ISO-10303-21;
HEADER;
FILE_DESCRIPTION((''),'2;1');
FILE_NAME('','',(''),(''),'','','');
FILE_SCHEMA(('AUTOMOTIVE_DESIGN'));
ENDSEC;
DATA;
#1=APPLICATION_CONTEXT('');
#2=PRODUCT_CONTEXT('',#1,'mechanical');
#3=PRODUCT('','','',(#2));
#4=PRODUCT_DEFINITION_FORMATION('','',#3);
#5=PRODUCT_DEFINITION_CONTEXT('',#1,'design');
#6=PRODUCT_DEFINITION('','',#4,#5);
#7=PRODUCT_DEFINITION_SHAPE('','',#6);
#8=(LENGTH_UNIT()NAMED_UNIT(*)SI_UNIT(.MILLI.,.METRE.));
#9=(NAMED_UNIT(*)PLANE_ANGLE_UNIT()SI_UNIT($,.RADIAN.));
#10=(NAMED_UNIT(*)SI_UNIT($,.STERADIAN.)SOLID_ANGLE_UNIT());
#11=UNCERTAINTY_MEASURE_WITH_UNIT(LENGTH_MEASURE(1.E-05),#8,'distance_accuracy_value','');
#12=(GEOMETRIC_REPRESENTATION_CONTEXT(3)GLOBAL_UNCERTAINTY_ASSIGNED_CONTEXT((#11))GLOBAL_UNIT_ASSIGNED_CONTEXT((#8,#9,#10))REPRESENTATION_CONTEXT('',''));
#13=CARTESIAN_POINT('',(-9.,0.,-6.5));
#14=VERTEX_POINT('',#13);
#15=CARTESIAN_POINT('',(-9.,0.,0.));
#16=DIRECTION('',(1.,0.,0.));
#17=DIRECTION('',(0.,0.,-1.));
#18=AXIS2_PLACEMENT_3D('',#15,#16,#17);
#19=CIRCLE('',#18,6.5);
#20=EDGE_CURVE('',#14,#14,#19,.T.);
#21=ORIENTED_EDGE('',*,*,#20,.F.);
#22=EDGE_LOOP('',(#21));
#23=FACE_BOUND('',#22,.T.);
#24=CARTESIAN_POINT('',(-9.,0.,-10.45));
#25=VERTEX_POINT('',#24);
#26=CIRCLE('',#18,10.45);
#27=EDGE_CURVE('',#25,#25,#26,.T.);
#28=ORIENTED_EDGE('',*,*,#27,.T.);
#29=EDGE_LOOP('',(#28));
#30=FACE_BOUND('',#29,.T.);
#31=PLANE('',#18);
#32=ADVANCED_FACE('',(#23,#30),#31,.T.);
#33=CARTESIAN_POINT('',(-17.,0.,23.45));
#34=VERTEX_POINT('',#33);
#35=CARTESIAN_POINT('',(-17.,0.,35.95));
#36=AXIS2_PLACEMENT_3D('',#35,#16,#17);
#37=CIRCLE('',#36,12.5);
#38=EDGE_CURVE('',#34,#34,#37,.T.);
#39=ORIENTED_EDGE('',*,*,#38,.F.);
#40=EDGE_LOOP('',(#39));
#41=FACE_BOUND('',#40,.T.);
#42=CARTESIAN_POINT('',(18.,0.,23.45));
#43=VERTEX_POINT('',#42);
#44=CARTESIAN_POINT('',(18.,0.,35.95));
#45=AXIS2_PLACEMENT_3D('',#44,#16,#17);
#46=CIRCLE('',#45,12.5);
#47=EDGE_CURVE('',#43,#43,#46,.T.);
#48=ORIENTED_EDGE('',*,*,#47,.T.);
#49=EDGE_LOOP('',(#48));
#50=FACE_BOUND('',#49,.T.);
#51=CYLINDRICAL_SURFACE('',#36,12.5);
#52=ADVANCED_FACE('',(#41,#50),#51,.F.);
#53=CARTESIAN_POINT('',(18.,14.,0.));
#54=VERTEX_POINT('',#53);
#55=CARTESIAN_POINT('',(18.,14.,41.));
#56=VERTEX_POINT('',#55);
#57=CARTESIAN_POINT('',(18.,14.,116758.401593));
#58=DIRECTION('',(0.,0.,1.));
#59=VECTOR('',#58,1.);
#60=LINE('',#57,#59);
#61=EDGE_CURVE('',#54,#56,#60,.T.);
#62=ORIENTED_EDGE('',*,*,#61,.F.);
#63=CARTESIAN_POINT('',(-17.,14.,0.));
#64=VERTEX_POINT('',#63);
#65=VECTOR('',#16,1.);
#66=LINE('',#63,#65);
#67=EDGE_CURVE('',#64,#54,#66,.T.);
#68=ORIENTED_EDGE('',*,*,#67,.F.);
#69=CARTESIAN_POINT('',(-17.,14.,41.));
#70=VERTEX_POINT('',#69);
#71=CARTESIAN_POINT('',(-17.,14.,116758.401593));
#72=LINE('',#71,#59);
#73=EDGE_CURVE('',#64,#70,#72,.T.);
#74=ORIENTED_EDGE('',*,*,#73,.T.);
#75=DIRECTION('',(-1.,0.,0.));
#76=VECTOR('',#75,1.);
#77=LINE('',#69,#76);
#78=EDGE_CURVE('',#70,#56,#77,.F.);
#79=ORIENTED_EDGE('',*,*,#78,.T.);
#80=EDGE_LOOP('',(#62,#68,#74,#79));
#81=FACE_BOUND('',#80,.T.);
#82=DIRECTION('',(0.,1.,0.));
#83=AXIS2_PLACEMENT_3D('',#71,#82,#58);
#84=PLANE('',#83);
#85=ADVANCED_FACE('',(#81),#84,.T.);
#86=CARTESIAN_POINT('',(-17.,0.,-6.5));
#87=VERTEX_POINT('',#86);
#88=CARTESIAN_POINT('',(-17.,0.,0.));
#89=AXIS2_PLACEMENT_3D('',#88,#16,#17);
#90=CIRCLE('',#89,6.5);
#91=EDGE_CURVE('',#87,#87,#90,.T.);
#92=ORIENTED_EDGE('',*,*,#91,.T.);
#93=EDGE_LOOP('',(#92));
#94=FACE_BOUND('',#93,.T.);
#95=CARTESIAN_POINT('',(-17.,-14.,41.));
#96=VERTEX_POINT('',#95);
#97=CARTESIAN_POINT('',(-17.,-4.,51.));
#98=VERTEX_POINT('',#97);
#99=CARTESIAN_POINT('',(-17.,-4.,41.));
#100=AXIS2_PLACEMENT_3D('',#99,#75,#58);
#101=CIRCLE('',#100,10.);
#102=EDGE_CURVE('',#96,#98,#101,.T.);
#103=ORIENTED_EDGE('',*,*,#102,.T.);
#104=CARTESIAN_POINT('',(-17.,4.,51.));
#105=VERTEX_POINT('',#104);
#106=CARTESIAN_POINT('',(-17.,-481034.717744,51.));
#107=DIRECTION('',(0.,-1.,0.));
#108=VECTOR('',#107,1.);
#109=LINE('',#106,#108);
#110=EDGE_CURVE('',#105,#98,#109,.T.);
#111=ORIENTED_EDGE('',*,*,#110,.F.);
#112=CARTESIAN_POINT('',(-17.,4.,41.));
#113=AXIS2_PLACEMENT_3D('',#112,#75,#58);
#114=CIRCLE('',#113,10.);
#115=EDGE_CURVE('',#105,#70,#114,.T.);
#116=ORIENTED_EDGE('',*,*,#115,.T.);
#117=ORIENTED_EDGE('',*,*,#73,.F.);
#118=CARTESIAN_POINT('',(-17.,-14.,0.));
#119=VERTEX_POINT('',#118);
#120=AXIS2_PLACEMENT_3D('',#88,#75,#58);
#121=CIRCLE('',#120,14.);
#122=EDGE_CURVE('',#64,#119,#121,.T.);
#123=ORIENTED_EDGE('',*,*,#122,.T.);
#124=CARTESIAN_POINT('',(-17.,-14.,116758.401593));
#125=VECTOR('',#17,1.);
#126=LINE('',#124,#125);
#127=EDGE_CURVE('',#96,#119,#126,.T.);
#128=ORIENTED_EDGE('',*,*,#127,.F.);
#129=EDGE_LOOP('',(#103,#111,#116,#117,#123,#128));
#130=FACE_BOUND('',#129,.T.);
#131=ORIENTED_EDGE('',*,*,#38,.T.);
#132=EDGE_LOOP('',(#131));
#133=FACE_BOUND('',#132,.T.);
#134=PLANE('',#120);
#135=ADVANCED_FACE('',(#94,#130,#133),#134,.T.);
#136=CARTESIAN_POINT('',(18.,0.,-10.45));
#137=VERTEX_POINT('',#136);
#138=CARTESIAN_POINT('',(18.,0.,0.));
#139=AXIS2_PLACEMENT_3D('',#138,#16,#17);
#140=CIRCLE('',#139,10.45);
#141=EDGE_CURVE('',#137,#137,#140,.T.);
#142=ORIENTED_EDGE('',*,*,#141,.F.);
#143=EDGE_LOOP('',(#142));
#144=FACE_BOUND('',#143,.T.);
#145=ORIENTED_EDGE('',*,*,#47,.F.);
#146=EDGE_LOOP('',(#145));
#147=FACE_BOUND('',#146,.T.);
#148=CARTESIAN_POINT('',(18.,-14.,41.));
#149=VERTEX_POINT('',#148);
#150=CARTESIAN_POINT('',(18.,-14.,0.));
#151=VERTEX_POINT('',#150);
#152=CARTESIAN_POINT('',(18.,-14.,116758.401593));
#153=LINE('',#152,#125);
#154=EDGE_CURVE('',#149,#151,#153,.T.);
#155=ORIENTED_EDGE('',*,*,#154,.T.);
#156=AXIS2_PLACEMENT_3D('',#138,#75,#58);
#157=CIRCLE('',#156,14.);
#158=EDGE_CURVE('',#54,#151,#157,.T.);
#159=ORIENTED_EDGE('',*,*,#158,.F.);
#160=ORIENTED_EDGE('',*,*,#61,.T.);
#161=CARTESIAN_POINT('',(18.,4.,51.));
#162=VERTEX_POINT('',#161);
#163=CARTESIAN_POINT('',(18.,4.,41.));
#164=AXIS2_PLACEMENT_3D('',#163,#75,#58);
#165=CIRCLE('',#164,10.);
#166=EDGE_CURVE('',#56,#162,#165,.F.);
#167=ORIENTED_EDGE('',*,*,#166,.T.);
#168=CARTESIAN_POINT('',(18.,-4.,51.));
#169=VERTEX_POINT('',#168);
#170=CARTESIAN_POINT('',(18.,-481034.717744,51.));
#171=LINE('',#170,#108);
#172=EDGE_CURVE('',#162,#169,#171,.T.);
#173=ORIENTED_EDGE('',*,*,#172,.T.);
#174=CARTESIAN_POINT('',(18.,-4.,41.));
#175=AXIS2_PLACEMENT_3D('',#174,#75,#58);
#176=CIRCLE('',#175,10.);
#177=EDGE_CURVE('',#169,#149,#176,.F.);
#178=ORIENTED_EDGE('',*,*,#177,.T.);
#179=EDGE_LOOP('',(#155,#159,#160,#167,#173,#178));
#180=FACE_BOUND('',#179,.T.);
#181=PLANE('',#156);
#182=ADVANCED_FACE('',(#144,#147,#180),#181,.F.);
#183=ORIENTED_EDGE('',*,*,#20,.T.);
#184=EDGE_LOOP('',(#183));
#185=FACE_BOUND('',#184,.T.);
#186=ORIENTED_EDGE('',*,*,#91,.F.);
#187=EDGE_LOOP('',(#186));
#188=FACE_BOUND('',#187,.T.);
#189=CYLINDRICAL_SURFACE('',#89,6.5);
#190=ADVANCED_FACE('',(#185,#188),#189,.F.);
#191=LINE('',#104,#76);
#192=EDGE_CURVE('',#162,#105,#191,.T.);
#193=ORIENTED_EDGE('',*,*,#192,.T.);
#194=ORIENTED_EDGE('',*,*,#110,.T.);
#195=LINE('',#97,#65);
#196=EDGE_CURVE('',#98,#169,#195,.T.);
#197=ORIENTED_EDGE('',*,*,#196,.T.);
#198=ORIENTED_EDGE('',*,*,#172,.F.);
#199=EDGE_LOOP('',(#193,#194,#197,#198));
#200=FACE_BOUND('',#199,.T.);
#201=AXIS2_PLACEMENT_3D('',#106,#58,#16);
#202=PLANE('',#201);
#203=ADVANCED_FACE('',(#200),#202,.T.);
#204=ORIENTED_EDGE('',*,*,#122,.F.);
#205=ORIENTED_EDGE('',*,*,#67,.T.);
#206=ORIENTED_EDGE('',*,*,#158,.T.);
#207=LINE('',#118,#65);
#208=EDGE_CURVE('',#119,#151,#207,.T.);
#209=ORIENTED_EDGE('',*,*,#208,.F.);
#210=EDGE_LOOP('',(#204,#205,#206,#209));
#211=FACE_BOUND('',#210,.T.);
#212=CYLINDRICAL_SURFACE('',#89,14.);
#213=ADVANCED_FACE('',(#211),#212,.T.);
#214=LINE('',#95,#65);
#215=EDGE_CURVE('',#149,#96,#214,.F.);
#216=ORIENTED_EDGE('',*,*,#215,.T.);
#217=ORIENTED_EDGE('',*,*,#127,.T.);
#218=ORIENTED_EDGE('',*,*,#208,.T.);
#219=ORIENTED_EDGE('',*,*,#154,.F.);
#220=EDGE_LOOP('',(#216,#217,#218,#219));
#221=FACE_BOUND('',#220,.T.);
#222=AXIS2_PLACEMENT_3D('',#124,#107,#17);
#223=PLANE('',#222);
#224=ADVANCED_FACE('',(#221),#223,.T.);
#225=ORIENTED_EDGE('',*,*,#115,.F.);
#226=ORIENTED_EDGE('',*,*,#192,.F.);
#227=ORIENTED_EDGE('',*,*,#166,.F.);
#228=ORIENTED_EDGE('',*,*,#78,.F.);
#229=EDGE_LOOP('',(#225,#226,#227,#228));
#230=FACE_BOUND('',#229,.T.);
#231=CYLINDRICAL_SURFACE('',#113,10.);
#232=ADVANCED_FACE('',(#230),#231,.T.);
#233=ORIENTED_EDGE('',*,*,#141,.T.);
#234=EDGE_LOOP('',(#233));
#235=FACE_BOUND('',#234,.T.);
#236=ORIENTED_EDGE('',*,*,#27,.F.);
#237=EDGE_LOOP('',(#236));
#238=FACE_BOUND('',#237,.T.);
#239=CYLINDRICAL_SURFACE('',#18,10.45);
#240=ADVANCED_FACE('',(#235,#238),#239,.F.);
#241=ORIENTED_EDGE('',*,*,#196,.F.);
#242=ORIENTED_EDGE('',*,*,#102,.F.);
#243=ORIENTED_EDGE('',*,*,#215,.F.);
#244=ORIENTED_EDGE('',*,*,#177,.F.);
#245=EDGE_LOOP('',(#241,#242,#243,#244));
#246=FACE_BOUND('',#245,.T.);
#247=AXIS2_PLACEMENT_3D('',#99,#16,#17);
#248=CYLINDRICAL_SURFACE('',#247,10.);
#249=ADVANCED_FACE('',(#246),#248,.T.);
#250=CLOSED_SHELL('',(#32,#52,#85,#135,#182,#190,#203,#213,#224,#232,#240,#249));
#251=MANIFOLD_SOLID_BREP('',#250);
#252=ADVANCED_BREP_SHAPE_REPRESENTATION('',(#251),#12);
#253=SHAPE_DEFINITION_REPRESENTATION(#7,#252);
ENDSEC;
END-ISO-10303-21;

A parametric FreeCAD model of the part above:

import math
import FreeCAD as App
import Part
import Sketcher
from FreeCAD import Vector


def edges_at(feature, points):
    """Names of the edges that pass closest to the given points."""
    edges = feature.Shape.Edges
    near = lambda p: min(range(len(edges)), key=lambda i: edges[i].distToShape(Part.Vertex(*p))[0])
    return sorted({f"Edge{near(p) + 1}" for p in points})

doc = App.newDocument("Part")
body = doc.addObject("PartDesign::Body", "Body")

# Sketch on YZ plane
sketch1 = doc.addObject("Sketcher::SketchObject", "Sketch")
body.addObject(sketch1)
sketch1.AttachmentSupport = (doc.YZ_Plane, [""])
sketch1.MapMode = "FlatFace"
sketch1.AttachmentOffset = App.Placement(Vector(0, 0, -17), App.Rotation())
sketch1.addGeometry(Part.LineSegment(Vector(-14, 51, 0), Vector(-14, 0, 0)), False)
sketch1.addGeometry(Part.ArcOfCircle(Part.Circle(Vector(0, 0, 0), Vector(0, 0, 1), 14), math.radians(180), math.radians(360)), False)
sketch1.addGeometry(Part.LineSegment(Vector(14, 0, 0), Vector(14, 51, 0)), False)
sketch1.addGeometry(Part.LineSegment(Vector(14, 51, 0), Vector(-14, 51, 0)), False)
sketch1.addConstraint(Sketcher.Constraint("Tangent", 0, 2, 1, 1))
sketch1.addConstraint(Sketcher.Constraint("Tangent", 1, 2, 2, 1))
sketch1.addConstraint(Sketcher.Constraint("Coincident", 2, 2, 3, 1))
sketch1.addConstraint(Sketcher.Constraint("Coincident", 3, 2, 0, 1))
sketch1.addConstraint(Sketcher.Constraint("Vertical", 0))
sketch1.addConstraint(Sketcher.Constraint("Vertical", 2))
sketch1.addConstraint(Sketcher.Constraint("Horizontal", 3))
sketch1.addConstraint(Sketcher.Constraint("Coincident", 1, 3, -1, 1))
sketch1.addConstraint(Sketcher.Constraint("Radius", 1, 14.0))
sketch1.addConstraint(Sketcher.Constraint("DistanceY", 0, 2, 0, 1, 51.0))
pad1 = doc.addObject("PartDesign::Pad", "Pad")
body.addObject(pad1)
pad1.Profile = sketch1
pad1.Length = 35

# Sketch on YZ plane
sketch2 = doc.addObject("Sketcher::SketchObject", "Sketch001")
body.addObject(sketch2)
sketch2.AttachmentSupport = (doc.YZ_Plane, [""])
sketch2.MapMode = "FlatFace"
sketch2.AttachmentOffset = App.Placement(Vector(0, 0, 18), App.Rotation())
sketch2.addGeometry(Part.Circle(Vector(0, 0, 0), Vector(0, 0, 1), 10.45), False)
sketch2.addConstraint(Sketcher.Constraint("Coincident", 0, 3, -1, 1))
sketch2.addConstraint(Sketcher.Constraint("Diameter", 0, 20.9))
pocket1 = doc.addObject("PartDesign::Pocket", "Pocket")
body.addObject(pocket1)
pocket1.Profile = sketch2
pocket1.Length = 27

# Sketch on YZ plane
sketch3 = doc.addObject("Sketcher::SketchObject", "Sketch002")
body.addObject(sketch3)
sketch3.AttachmentSupport = (doc.YZ_Plane, [""])
sketch3.MapMode = "FlatFace"
sketch3.AttachmentOffset = App.Placement(Vector(0, 0, -9), App.Rotation())
sketch3.addGeometry(Part.Circle(Vector(0, 0, 0), Vector(0, 0, 1), 6.5), False)
sketch3.addConstraint(Sketcher.Constraint("Coincident", 0, 3, -1, 1))
sketch3.addConstraint(Sketcher.Constraint("Diameter", 0, 13.0))
pocket2 = doc.addObject("PartDesign::Pocket", "Pocket001")
body.addObject(pocket2)
pocket2.Profile = sketch3
pocket2.Type = "ThroughAll"

# Sketch on YZ plane
sketch4 = doc.addObject("Sketcher::SketchObject", "Sketch003")
body.addObject(sketch4)
sketch4.AttachmentSupport = (doc.YZ_Plane, [""])
sketch4.MapMode = "FlatFace"
sketch4.AttachmentOffset = App.Placement(Vector(0, 0, 18), App.Rotation())
sketch4.addGeometry(Part.Circle(Vector(0, 35.95, 0), Vector(0, 0, 1), 12.5), False)
sketch4.addConstraint(Sketcher.Constraint("PointOnObject", 0, 3, -2))
sketch4.addConstraint(Sketcher.Constraint("Diameter", 0, 25.0))
sketch4.addConstraint(Sketcher.Constraint("DistanceY", -1, 1, 0, 3, 35.95))
pocket3 = doc.addObject("PartDesign::Pocket", "Pocket002")
body.addObject(pocket3)
pocket3.Profile = sketch4
pocket3.Type = "ThroughAll"
doc.recompute()

fillet = doc.addObject("PartDesign::Fillet", "Fillet")
body.addObject(fillet)
fillet.Base = (pocket3, edges_at(pocket3, [(0.5, 14, 51)]))
fillet.Radius = 10
doc.recompute()

fillet2 = doc.addObject("PartDesign::Fillet", "Fillet001")
body.addObject(fillet2)
fillet2.Base = (fillet, edges_at(fillet, [(0.5, -14, 51)]))
fillet2.Radius = 10

doc.recompute()
